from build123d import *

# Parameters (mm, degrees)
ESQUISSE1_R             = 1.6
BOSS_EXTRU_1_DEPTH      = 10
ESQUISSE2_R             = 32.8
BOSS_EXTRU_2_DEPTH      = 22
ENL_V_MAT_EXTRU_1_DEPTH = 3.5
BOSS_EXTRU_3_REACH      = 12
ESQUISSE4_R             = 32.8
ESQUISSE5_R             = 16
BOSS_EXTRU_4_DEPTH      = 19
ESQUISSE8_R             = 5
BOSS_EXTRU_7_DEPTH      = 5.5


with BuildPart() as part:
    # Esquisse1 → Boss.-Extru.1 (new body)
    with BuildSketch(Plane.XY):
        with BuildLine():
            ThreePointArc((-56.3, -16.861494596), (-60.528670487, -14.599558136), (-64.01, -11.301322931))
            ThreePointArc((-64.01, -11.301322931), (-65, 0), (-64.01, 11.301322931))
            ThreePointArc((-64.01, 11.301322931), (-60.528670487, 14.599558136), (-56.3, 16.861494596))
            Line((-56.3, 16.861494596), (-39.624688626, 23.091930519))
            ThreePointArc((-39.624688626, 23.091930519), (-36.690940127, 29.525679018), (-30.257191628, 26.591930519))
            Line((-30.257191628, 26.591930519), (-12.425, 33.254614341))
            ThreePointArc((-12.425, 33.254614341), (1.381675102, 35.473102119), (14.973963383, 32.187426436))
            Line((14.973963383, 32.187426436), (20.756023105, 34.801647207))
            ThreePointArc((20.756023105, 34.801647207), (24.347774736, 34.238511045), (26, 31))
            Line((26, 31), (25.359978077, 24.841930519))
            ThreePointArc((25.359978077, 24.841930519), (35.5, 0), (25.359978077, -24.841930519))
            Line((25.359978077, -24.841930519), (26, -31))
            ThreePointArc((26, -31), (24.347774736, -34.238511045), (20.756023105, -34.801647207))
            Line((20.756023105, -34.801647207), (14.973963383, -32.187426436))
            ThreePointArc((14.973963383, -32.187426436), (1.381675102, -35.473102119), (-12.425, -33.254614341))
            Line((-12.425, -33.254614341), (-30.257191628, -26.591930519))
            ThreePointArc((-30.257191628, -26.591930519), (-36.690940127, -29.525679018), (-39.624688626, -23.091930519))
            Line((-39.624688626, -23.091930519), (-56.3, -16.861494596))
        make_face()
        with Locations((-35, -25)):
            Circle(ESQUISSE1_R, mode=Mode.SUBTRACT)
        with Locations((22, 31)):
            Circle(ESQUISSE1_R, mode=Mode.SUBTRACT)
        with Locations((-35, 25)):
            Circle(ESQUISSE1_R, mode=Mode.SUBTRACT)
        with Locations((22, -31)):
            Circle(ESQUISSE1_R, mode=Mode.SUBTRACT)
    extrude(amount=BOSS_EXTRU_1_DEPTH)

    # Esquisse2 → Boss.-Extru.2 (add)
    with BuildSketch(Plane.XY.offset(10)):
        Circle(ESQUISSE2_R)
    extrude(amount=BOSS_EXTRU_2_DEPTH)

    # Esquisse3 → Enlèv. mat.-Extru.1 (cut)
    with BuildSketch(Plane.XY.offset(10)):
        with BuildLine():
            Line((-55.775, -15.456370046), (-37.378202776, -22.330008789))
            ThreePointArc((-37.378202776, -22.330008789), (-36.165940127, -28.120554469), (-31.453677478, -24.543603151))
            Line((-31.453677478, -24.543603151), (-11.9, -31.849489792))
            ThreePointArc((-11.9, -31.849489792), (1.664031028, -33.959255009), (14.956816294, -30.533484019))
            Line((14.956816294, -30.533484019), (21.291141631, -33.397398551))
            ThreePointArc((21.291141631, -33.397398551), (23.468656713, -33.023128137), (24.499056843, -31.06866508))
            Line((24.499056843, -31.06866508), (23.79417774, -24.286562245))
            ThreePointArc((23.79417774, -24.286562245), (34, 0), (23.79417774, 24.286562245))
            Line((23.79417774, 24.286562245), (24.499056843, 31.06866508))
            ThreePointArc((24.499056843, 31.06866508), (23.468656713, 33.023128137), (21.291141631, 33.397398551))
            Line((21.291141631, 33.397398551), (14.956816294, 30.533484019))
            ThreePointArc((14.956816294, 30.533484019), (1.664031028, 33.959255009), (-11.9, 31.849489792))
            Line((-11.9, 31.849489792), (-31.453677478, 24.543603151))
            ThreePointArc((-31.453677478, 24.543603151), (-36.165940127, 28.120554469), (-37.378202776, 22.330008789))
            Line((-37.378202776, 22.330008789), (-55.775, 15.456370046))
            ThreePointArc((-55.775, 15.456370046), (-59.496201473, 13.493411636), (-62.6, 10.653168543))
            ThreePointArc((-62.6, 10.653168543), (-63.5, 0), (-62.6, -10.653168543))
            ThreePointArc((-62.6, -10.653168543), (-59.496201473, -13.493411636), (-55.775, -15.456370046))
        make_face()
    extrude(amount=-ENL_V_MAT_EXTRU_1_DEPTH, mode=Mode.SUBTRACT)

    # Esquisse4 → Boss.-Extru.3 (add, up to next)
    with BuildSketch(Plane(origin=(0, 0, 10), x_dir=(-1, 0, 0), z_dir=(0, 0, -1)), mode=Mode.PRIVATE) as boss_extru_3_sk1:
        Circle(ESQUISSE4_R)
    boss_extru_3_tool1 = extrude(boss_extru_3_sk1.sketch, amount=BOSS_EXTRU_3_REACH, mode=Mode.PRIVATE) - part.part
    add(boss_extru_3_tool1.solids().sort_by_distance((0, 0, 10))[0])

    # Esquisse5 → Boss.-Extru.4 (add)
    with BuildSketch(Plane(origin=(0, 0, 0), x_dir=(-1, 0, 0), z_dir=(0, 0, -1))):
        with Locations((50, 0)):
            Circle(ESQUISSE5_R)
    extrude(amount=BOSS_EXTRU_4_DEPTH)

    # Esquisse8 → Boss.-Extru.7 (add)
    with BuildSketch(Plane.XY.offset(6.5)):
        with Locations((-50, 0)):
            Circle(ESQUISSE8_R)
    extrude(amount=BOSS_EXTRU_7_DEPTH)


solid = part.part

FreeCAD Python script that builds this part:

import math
import FreeCAD as App
import Part
import Sketcher

V = App.Vector

doc = App.newDocument("Part")
body = doc.addObject("PartDesign::Body", "Body")
body.AllowCompound = True

sketch1 = body.newObject("Sketcher::SketchObject", "Sketch")
sketch1.AttachmentSupport = (doc.getObject("XY_Plane"), [""])
sketch1.MapMode = "FlatFace"
sketch1.addGeometry([
    Part.ArcOfCircle(Part.Circle(V(-50, 0, 0), V(0, 0, 1), 18), math.radians(-141), math.radians(-110)),
    Part.LineSegment(V(-56.3, -16.9, 0), V(-39.6, -23.1, 0)),
    Part.ArcOfCircle(Part.Circle(V(-34.9, -24.8, 0), V(0, 0, 1), 5), math.radians(160), math.radians(340)),
    Part.LineSegment(V(-30.3, -26.6, 0), V(-12.4, -33.3, 0)),
    Part.ArcOfCircle(Part.Circle(V(0, 0, 0), V(0, 0, 1), 35.5), math.radians(-110), math.radians(-65)),
    Part.LineSegment(V(15, -32.2, 0), V(20.8, -34.8, 0)),
    Part.ArcOfCircle(Part.Circle(V(22, -31, 0), V(0, 0, 1), 4), math.radians(-108), math.radians(0)),
    Part.LineSegment(V(26, -31, 0), V(25.4, -24.8, 0)),
    Part.ArcOfCircle(Part.Circle(V(0, 0, 0), V(0, 0, 1), 35.5), math.radians(-44), math.radians(44)),
    Part.LineSegment(V(25.4, 24.8, 0), V(26, 31, 0)),
    Part.ArcOfCircle(Part.Circle(V(22, 31, 0), V(0, 0, 1), 4), math.radians(0), math.radians(108)),
    Part.LineSegment(V(20.8, 34.8, 0), V(15, 32.2, 0)),
    Part.ArcOfCircle(Part.Circle(V(0, 0, 0), V(0, 0, 1), 35.5), math.radians(65), math.radians(110)),
    Part.LineSegment(V(-12.4, 33.3, 0), V(-30.3, 26.6, 0)),
    Part.ArcOfCircle(Part.Circle(V(-34.9, 24.8, 0), V(0, 0, 1), 5), math.radians(20), math.radians(200)),
    Part.LineSegment(V(-39.6, 23.1, 0), V(-56.3, 16.9, 0)),
    Part.ArcOfCircle(Part.Circle(V(-50, 0, 0), V(0, 0, 1), 18), math.radians(110), math.radians(141)),
    Part.ArcOfCircle(Part.Circle(V(0, 0, 0), V(0, 0, 1), 65), math.radians(170), math.radians(190)),
    Part.Circle(V(22, -31, 0), V(0, 0, 1), 1.6),
    Part.Circle(V(-35, -25, 0), V(0, 0, 1), 1.6),
    Part.Circle(V(22, 31, 0), V(0, 0, 1), 1.6),
    Part.Circle(V(-35, 25, 0), V(0, 0, 1), 1.6),
], False)
sketch1.addConstraint([
    Sketcher.Constraint("Tangent", 0, 2, 1, 1),
    Sketcher.Constraint("Coincident", 1, 2, 2, 1),
    Sketcher.Constraint("Coincident", 2, 2, 3, 1),
    Sketcher.Constraint("Tangent", 3, 2, 4, 1),
    Sketcher.Constraint("Coincident", 4, 2, 5, 1),
    Sketcher.Constraint("Coincident", 5, 2, 6, 1),
    Sketcher.Constraint("Coincident", 6, 2, 7, 1),
    Sketcher.Constraint("Coincident", 7, 2, 8, 1),
    Sketcher.Constraint("Coincident", 8, 2, 9, 1),
    Sketcher.Constraint("Coincident", 9, 2, 10, 1),
    Sketcher.Constraint("Coincident", 10, 2, 11, 1),
    Sketcher.Constraint("Coincident", 11, 2, 12, 1),
    Sketcher.Constraint("Tangent", 12, 2, 13, 1),
    Sketcher.Constraint("Coincident", 13, 2, 14, 1),
    Sketcher.Constraint("Coincident", 14, 2, 15, 1),
    Sketcher.Constraint("Tangent", 15, 2, 16, 1),
    Sketcher.Constraint("Coincident", 16, 2, 17, 1),
    Sketcher.Constraint("Coincident", 17, 2, 0, 1),
    Sketcher.Constraint("Coincident", 4, 3, -1, 1),
    Sketcher.Constraint("Coincident", 8, 3, -1, 1),
    Sketcher.Constraint("Coincident", 12, 3, -1, 1),
    Sketcher.Constraint("Coincident", 17, 3, -1, 1),
    Sketcher.Constraint("Coincident", 16, 3, 0, 3),
    Sketcher.Constraint("Coincident", 18, 3, 6, 3),
    Sketcher.Constraint("Coincident", 20, 3, 10, 3),
    Sketcher.Constraint("Equal", 4, 8),
    Sketcher.Constraint("Equal", 6, 10),
    Sketcher.Constraint("Equal", 8, 12),
    Sketcher.Constraint("Equal", 2, 14),
    Sketcher.Constraint("Equal", 0, 16),
    Sketcher.Constraint("Equal", 18, 19),
    Sketcher.Constraint("Equal", 19, 20),
    Sketcher.Constraint("Equal", 20, 21),
    Sketcher.Constraint("Symmetric", 6, 3, 10, 3, -1),
    Sketcher.Constraint("Symmetric", 2, 3, 14, 3, -1),
    Sketcher.Constraint("Symmetric", 19, 3, 21, 3, -1),
    Sketcher.Constraint("Symmetric", 0, 2, 15, 2, -1),
    Sketcher.Constraint("Parallel", 1, 3),
    Sketcher.Constraint("Parallel", 13, 15),
    Sketcher.Constraint("Horizontal", 18, 3, 6, 2),
    Sketcher.Constraint("Horizontal", 2, 3, 7, 2),
    Sketcher.Constraint("Horizontal", 14, 3, 8, 2),
    Sketcher.Constraint("Horizontal", 20, 3, 9, 2),
    Sketcher.Constraint("Vertical", 5, 2, 10, 2),
    Sketcher.Constraint("Vertical", 4, 2, 11, 2),
    Sketcher.Constraint("Radius", 0, 18.0),
    Sketcher.Constraint("Radius", 2, 5.0),
    Sketcher.Constraint("Radius", 6, 4.0),
    Sketcher.Constraint("Radius", 17, 65.0),
    Sketcher.Constraint("Diameter", 18, 3.2),
    Sketcher.Constraint("Radius", 4, 35.5),
    Sketcher.Constraint("DistanceX", 0, 3, -1, 1, 50.0),
    Sketcher.Constraint("DistanceX", -1, 1, 6, 3, 22.0),
    Sketcher.Constraint("DistanceY", 6, 3, -1, 1, 31.0),
    Sketcher.Constraint("DistanceX", 19, 3, -1, 1, 35.0),
    Sketcher.Constraint("DistanceY", 19, 3, -1, 1, 25.0),
    Sketcher.Constraint("DistanceX", 0, 2, -1, 1, 56.3),
    Sketcher.Constraint("DistanceY", 2, 3, 1, 2, 1.75),
    Sketcher.Constraint("Distance", 3, 19.036239),
    Sketcher.Constraint("Distance", 5, 6.345578),
    Sketcher.Constraint("DistanceX", 4, 2, 5, 2, 5.78206),
])
pad1 = body.newObject("PartDesign::Pad", "Pad")
pad1.Profile = sketch1
pad1.Length = 10

sketch2 = body.newObject("Sketcher::SketchObject", "Sketch001")
sketch2.AttachmentSupport = (doc.getObject("XY_Plane"), [""])
sketch2.MapMode = "FlatFace"
sketch2.AttachmentOffset = App.Placement(V(0, 0, 10), App.Rotation())
sketch2.addGeometry(Part.Circle(V(0, 0, 0), V(0, 0, 1), 33), False)
sketch2.addConstraint([
    Sketcher.Constraint("Coincident", 0, 3, -1, 1),
    Sketcher.Constraint("Diameter", 0, 65.6),
])
pad2 = body.newObject("PartDesign::Pad", "Pad001")
pad2.Profile = sketch2
pad2.Length = 22

sketch3 = body.newObject("Sketcher::SketchObject", "Sketch002")
sketch3.AttachmentSupport = (doc.getObject("XY_Plane"), [""])
sketch3.MapMode = "FlatFace"
sketch3.AttachmentOffset = App.Placement(V(0, 0, 10), App.Rotation())
sketch3.addGeometry([
    Part.LineSegment(V(-55.8, -15.5, 0), V(-37.4, -22.3, 0)),
    Part.ArcOfCircle(Part.Circle(V(-34.9, -24.8, 0), V(0, 0, 1), 3.5), math.radians(134), math.radians(365)),
    Part.LineSegment(V(-31.5, -24.5, 0), V(-11.9, -31.8, 0)),
    Part.ArcOfCircle(Part.Circle(V(0, 0, 0), V(0, 0, 1), 34), math.radians(-110), math.radians(-64)),
    Part.LineSegment(V(15, -30.5, 0), V(21.3, -33.4, 0)),
    Part.ArcOfCircle(Part.Circle(V(22, -31, 0), V(0, 0, 1), 2.5), math.radians(-106), math.radians(-2)),
    Part.LineSegment(V(24.5, -31.1, 0), V(23.8, -24.3, 0)),
    Part.ArcOfCircle(Part.Circle(V(0, 0, 0), V(0, 0, 1), 34), math.radians(-46), math.radians(46)),
    Part.LineSegment(V(23.8, 24.3, 0), V(24.5, 31.1, 0)),
    Part.ArcOfCircle(Part.Circle(V(22, 31, 0), V(0, 0, 1), 2.5), math.radians(2), math.radians(106)),
    Part.LineSegment(V(21.3, 33.4, 0), V(15, 30.5, 0)),
    Part.ArcOfCircle(Part.Circle(V(0, 0, 0), V(0, 0, 1), 34), math.radians(64), math.radians(110)),
    Part.LineSegment(V(-11.9, 31.8, 0), V(-31.5, 24.5, 0)),
    Part.ArcOfCircle(Part.Circle(V(-34.9, 24.8, 0), V(0, 0, 1), 3.5), math.radians(-5), math.radians(226)),
    Part.LineSegment(V(-37.4, 22.3, 0), V(-55.8, 15.5, 0)),
    Part.ArcOfCircle(Part.Circle(V(-50, 0, 0), V(0, 0, 1), 16.5), math.radians(110), math.radians(140)),
    Part.ArcOfCircle(Part.Circle(V(0, 0, 0), V(0, 0, 1), 63.5), math.radians(170.34), math.radians(189.66)),
    Part.ArcOfCircle(Part.Circle(V(-50, 0, 0), V(0, 0, 1), 16.5), math.radians(-140), math.radians(-110)),
], False)
sketch3.addConstraint([
    Sketcher.Constraint("Coincident", 0, 2, 1, 1),
    Sketcher.Constraint("Coincident", 1, 2, 2, 1),
    Sketcher.Constraint("Tangent", 2, 2, 3, 1),
    Sketcher.Constraint("Coincident", 3, 2, 4, 1),
    Sketcher.Constraint("Coincident", 4, 2, 5, 1),
    Sketcher.Constraint("Coincident", 5, 2, 6, 1),
    Sketcher.Constraint("Coincident", 6, 2, 7, 1),
    Sketcher.Constraint("Coincident", 7, 2, 8, 1),
    Sketcher.Constraint("Coincident", 8, 2, 9, 1),
    Sketcher.Constraint("Coincident", 9, 2, 10, 1),
    Sketcher.Constraint("Coincident", 10, 2, 11, 1),
    Sketcher.Constraint("Tangent", 11, 2, 12, 1),
    Sketcher.Constraint("Coincident", 12, 2, 13, 1),
    Sketcher.Constraint("Coincident", 13, 2, 14, 1),
    Sketcher.Constraint("Tangent", 14, 2, 15, 1),
    Sketcher.Constraint("Coincident", 15, 2, 16, 1),
    Sketcher.Constraint("Coincident", 16, 2, 17, 1),
    Sketcher.Constraint("Tangent", 17, 2, 0, 1),
    Sketcher.Constraint("Coincident", 3, 3, -1, 1),
    Sketcher.Constraint("Coincident", 7, 3, -1, 1),
    Sketcher.Constraint("Coincident", 11, 3, -1, 1),
    Sketcher.Constraint("Coincident", 16, 3, -1, 1),
    Sketcher.Constraint("Coincident", 17, 3, 15, 3),
    Sketcher.Constraint("Equal", 3, 7),
    Sketcher.Constraint("Equal", 5, 9),
    Sketcher.Constraint("Equal", 7, 11),
    Sketcher.Constraint("Equal", 1, 13),
    Sketcher.Constraint("Equal", 15, 17),
    Sketcher.Constraint("Symmetric", 5, 3, 9, 3, -1),
    Sketcher.Constraint("Symmetric", 1, 3, 13, 3, -1),
    Sketcher.Constraint("Symmetric", 14, 2, 17, 2, -1),
    Sketcher.Constraint("Parallel", 0, 2),
    Sketcher.Constraint("Parallel", 12, 14),
    Sketcher.Constraint("Vertical", 6, 2, 7, 2),
    Sketcher.Constraint("Vertical", 5, 2, 8, 2),
    Sketcher.Constraint("Vertical", 4, 2, 9, 2),
    Sketcher.Constraint("Vertical", 3, 2, 10, 2),
    Sketcher.Constraint("Radius", 3, 34.0),
    Sketcher.Constraint("Radius", 1, 3.5),
    Sketcher.Constraint("Radius", 5, 2.5),
    Sketcher.Constraint("Radius", 15, 16.5),
    Sketcher.Constraint("Radius", 16, 63.5),
    Sketcher.Constraint("DistanceX", -1, 1, 5, 3, 22.0),
    Sketcher.Constraint("DistanceY", 5, 3, -1, 1, 31.0),
    Sketcher.Constraint("DistanceX", 15, 3, -1, 1, 50.0),
    Sketcher.Constraint("DistanceX", 2, 2, -1, 1, 11.9),
    Sketcher.Constraint("DistanceY", 4, 2, -1, 1, 33.397399),
    Sketcher.Constraint("Distance", 2, 20.873962),
    Sketcher.Constraint("DistanceX", 1, 3, -1, 1, 34.94094),
    Sketcher.Constraint("DistanceX", 3, 2, 5, 2, 9.542241),
    Sketcher.Constraint("DistanceY", 5, 2, 3, 2, 0.535181),
    Sketcher.Constraint("DistanceX", 6, 2, 5, 2, 0.704879),
])
pocket1 = body.newObject("PartDesign::Pocket", "Pocket")
pocket1.Profile = sketch3
pocket1.Length = 3.5

sketch4 = body.newObject("Sketcher::SketchObject", "Sketch003")
sketch4.AttachmentSupport = (doc.getObject("XY_Plane"), [""])
sketch4.MapMode = "FlatFace"
sketch4.AttachmentOffset = App.Placement(V(0, 0, 10), App.Rotation())
sketch4.addGeometry(Part.Circle(V(0, 0, 0), V(0, 0, 1), 33), False)
sketch4.addConstraint([
    Sketcher.Constraint("Coincident", 0, 3, -1, 1),
    Sketcher.Constraint("Diameter", 0, 65.6),
])
pad3 = body.newObject("PartDesign::Pad", "Pad002")
pad3.Profile = sketch4
pad3.Type = "UpToFirst"
pad3.Reversed = True

sketch5 = body.newObject("Sketcher::SketchObject", "Sketch004")
sketch5.AttachmentSupport = (doc.getObject("XY_Plane"), [""])
sketch5.MapMode = "FlatFace"
sketch5.addGeometry(Part.Circle(V(-50, 0, 0), V(0, 0, 1), 16), False)
sketch5.addConstraint([
    Sketcher.Constraint("PointOnObject", 0, 3, -1),
    Sketcher.Constraint("Diameter", 0, 32.0),
    Sketcher.Constraint("DistanceX", 0, 3, -1, 1, 50.0),
])
pad4 = body.newObject("PartDesign::Pad", "Pad003")
pad4.Profile = sketch5
pad4.Length = 19
pad4.Reversed = True

sketch6 = body.newObject("Sketcher::SketchObject", "Sketch005")
sketch6.AttachmentSupport = (doc.getObject("XY_Plane"), [""])
sketch6.MapMode = "FlatFace"
sketch6.AttachmentOffset = App.Placement(V(0, 0, 6.5), App.Rotation())
sketch6.addGeometry(Part.Circle(V(-50, 0, 0), V(0, 0, 1), 5), False)
sketch6.addConstraint([
    Sketcher.Constraint("PointOnObject", 0, 3, -1),
    Sketcher.Constraint("Diameter", 0, 10.0),
    Sketcher.Constraint("DistanceX", 0, 3, -1, 1, 50.0),
])
pad5 = body.newObject("PartDesign::Pad", "Pad004")
pad5.Profile = sketch6
pad5.Length = 5.5

doc.recompute()
